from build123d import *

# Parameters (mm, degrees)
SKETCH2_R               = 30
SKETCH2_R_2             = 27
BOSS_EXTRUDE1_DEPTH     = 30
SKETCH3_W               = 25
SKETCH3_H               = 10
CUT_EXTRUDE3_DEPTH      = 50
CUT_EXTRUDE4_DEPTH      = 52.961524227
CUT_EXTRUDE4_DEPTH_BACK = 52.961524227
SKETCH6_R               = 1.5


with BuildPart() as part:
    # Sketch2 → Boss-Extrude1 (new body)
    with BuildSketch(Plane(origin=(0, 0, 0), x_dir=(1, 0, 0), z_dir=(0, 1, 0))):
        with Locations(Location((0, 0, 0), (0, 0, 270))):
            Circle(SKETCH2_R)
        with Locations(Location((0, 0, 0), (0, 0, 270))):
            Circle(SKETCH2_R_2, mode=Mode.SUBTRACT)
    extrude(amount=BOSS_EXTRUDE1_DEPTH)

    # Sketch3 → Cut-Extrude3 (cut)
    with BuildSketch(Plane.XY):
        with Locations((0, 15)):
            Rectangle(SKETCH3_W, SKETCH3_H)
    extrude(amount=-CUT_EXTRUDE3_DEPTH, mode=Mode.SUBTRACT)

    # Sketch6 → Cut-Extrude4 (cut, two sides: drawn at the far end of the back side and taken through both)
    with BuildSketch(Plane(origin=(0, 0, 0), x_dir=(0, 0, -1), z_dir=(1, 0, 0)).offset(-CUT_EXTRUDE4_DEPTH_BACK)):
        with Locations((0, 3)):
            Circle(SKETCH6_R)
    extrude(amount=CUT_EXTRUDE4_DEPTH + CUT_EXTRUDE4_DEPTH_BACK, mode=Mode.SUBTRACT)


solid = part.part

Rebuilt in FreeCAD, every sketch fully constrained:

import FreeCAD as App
import Part
import Sketcher

V = App.Vector

doc = App.newDocument("Part")
params = doc.addObject("Spreadsheet::Sheet", "Params")
for row, (alias, value) in enumerate([
    ("sketch1_diameter", "60 mm"),
    ("sketch1_diameter2", "54 mm"),
    ("pad1_length", "30 mm"),
    ("sketch2_width", "25 mm"),
    ("sketch2_height", "10 mm"),
    ("pocket1_length", "50 mm"),
    ("sketch3_diameter", "3 mm"),
], start=1):
    params.set(f"A{row}", alias)
    params.set(f"B{row}", "=" + value)
    params.setAlias(f"B{row}", alias)

body = doc.addObject("PartDesign::Body", "Body")

sketch1 = body.newObject("Sketcher::SketchObject", "Sketch")
sketch1.AttachmentSupport = (doc.getObject("XZ_Plane"), [""])
sketch1.MapMode = "FlatFace"
sketch1.addGeometry([
    Part.Circle(V(0, 0, 0), V(0, 0, 1), 30),
    Part.Circle(V(0, 0, 0), V(0, 0, 1), 27),
], False)
sketch1.addConstraint([
    Sketcher.Constraint("Coincident", 0, 3, -1, 1),
    Sketcher.Constraint("Coincident", 1, 3, -1, 1),
    Sketcher.Constraint("Diameter", 0, 60.0),
    Sketcher.Constraint("Diameter", 1, 54.0),
])
sketch1.setExpression("Constraints[2]", "Params.sketch1_diameter")
sketch1.setExpression("Constraints[3]", "Params.sketch1_diameter2")
pad1 = body.newObject("PartDesign::Pad", "Pad")
pad1.Profile = sketch1
pad1.setExpression("Length", "Params.pad1_length")
pad1.Reversed = True

sketch2 = body.newObject("Sketcher::SketchObject", "Sketch001")
sketch2.AttachmentSupport = (doc.getObject("XY_Plane"), [""])
sketch2.MapMode = "FlatFace"
sketch2.addGeometry([
    Part.LineSegment(V(-12, 20, 0), V(-12, 10, 0)),
    Part.LineSegment(V(-12, 10, 0), V(12, 10, 0)),
    Part.LineSegment(V(12, 10, 0), V(12, 20, 0)),
    Part.LineSegment(V(12, 20, 0), V(-12, 20, 0)),
], False)
sketch2.addConstraint([
    Sketcher.Constraint("Coincident", 0, 2, 1, 1),
    Sketcher.Constraint("Coincident", 1, 2, 2, 1),
    Sketcher.Constraint("Coincident", 2, 2, 3, 1),
    Sketcher.Constraint("Coincident", 3, 2, 0, 1),
    Sketcher.Constraint("Vertical", 0),
    Sketcher.Constraint("Horizontal", 1),
    Sketcher.Constraint("Vertical", 2),
    Sketcher.Constraint("Horizontal", 3),
    Sketcher.Constraint("DistanceX", 1, 1, 1, 2, 25.0),
    Sketcher.Constraint("DistanceY", 0, 2, 0, 1, 10.0),
    Sketcher.Constraint("DistanceY", -1, 1, 0, 2, 10.0),
    Sketcher.Constraint("DistanceX", 0, 2, -1, 1, 12.5),
])
sketch2.setExpression("Constraints[8]", "Params.sketch2_width")
sketch2.setExpression("Constraints[9]", "Params.sketch2_height")
pocket1 = body.newObject("PartDesign::Pocket", "Pocket")
pocket1.Profile = sketch2
pocket1.setExpression("Length", "Params.pocket1_length")

sketch3 = body.newObject("Sketcher::SketchObject", "Sketch002")
sketch3.AttachmentSupport = (doc.getObject("YZ_Plane"), [""])
sketch3.MapMode = "FlatFace"
sketch3.addGeometry(Part.Circle(V(3, 0, 0), V(0, 0, 1), 1.5), False)
sketch3.addConstraint([
    Sketcher.Constraint("PointOnObject", 0, 3, -1),
    Sketcher.Constraint("Diameter", 0, 3.0),
    Sketcher.Constraint("DistanceX", -1, 1, 0, 3, 3.0),
])
sketch3.setExpression("Constraints[1]", "Params.sketch3_diameter")
pocket2 = body.newObject("PartDesign::Pocket", "Pocket001")
pocket2.Profile = sketch3
pocket2.Type = "ThroughAll"
pocket2.Midplane = True

doc.recompute()
